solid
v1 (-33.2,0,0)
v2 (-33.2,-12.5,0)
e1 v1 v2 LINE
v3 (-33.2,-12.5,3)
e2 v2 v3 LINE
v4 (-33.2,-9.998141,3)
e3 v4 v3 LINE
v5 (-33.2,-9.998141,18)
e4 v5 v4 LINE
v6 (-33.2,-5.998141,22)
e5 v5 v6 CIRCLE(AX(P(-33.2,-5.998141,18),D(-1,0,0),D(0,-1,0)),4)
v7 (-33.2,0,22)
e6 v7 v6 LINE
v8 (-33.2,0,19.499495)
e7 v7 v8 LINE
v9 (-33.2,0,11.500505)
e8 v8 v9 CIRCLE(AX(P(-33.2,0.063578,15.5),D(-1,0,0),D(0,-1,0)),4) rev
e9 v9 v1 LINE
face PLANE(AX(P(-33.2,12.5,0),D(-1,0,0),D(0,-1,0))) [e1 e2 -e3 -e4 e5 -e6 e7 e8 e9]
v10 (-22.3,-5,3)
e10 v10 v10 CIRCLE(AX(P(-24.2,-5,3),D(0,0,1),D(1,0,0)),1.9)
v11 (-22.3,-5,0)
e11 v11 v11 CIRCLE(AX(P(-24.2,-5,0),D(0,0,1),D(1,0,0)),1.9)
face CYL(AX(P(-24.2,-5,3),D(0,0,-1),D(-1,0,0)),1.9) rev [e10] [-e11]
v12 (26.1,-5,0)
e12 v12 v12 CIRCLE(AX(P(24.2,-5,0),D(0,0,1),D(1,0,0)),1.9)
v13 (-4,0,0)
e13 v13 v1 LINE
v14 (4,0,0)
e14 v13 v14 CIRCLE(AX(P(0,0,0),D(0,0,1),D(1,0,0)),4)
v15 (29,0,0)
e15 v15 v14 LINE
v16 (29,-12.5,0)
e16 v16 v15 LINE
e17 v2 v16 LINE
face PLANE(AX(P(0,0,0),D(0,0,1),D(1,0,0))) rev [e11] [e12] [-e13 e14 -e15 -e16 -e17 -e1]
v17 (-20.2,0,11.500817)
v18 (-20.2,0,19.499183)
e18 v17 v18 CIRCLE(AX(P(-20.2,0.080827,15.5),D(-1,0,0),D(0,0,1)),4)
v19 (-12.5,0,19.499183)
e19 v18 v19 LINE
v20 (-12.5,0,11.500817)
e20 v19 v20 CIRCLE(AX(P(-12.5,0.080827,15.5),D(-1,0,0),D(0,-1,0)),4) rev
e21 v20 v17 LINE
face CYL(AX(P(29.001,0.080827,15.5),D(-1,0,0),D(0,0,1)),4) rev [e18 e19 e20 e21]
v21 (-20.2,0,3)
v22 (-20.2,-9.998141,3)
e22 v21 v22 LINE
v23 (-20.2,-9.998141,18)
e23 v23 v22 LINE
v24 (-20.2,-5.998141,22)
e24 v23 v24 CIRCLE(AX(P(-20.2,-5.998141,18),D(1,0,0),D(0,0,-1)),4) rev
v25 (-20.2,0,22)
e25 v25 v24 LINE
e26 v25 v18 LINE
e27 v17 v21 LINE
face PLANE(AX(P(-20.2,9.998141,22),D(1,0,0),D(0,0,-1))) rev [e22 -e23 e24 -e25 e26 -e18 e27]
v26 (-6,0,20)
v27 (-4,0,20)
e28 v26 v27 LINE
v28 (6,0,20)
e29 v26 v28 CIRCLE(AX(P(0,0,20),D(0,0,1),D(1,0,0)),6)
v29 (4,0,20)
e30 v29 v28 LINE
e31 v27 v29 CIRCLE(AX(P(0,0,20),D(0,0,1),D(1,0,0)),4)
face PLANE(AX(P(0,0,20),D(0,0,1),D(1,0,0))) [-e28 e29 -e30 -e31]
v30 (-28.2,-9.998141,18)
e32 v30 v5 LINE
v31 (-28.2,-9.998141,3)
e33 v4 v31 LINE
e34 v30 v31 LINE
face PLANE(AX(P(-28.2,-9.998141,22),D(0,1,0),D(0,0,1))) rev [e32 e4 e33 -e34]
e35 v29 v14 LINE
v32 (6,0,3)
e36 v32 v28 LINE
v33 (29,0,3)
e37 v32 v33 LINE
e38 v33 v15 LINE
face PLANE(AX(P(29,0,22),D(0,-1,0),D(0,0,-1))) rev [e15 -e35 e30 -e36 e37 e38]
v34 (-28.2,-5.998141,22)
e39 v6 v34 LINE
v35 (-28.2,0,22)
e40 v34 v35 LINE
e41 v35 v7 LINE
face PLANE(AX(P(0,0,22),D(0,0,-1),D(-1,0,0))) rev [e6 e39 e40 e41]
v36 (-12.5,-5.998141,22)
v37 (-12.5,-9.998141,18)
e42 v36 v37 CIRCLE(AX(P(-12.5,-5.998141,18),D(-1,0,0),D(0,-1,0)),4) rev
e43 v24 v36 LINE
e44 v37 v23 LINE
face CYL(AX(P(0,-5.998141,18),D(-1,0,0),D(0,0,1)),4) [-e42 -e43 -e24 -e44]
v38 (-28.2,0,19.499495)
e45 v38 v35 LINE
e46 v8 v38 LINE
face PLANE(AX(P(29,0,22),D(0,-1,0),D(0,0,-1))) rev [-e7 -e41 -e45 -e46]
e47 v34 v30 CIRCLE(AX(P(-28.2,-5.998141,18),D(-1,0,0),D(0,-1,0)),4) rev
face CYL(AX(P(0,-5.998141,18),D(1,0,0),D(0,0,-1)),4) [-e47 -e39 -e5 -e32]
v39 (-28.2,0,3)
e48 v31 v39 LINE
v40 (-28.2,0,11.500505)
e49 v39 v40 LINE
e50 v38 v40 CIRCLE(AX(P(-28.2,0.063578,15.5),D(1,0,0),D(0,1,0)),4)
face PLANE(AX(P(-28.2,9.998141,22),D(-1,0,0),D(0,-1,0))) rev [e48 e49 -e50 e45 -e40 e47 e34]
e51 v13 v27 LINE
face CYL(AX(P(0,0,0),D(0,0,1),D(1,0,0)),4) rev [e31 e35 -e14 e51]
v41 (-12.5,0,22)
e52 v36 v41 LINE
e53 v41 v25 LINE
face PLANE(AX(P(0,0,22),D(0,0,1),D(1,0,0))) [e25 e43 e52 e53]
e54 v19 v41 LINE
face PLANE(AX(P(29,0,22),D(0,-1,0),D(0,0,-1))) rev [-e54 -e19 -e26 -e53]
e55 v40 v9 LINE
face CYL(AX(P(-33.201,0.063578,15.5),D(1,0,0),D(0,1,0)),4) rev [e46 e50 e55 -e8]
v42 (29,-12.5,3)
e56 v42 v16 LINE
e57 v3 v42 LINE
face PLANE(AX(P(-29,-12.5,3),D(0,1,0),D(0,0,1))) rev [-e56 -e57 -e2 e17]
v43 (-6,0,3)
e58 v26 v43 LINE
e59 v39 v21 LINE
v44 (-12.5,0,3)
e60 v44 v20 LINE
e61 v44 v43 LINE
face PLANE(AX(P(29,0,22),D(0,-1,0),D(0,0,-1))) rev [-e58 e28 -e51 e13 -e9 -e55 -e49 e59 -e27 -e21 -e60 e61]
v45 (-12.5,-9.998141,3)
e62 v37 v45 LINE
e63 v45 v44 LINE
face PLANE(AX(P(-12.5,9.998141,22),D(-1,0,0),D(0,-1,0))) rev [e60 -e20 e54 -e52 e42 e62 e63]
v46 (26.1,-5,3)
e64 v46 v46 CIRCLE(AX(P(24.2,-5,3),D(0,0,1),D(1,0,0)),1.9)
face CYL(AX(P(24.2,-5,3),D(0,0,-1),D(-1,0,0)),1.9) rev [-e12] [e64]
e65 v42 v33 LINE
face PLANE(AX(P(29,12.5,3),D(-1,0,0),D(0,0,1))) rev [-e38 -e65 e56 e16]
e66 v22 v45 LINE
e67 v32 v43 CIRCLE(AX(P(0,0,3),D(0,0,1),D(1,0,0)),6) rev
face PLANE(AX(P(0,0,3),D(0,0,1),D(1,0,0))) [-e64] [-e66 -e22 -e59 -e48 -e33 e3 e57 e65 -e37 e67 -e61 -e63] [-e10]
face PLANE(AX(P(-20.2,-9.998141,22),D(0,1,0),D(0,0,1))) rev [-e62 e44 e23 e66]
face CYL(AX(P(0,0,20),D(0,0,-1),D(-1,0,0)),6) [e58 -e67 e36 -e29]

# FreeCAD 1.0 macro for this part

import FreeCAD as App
import Part
import Sketcher
Q = App.Units.Quantity


def edges_at(feature, points):
    """Names of the edges that pass closest to the given points."""
    edges = feature.Shape.Edges
    near = lambda p: min(range(len(edges)), key=lambda i: edges[i].distToShape(Part.Vertex(*p))[0])
    return sorted({f"Edge{near(p) + 1}" for p in points})


def add_polygon(sketch, points):
    """Adds a closed chain of lines whose ends are joined by coincident constraints."""
    first, n = sketch.GeometryCount, len(points)
    for a, b in zip(points, points[1:] + points[:1]):
        sketch.addGeometry(Part.LineSegment(App.Vector(*a, 0), App.Vector(*b, 0)), False)
    for i in range(n):
        sketch.addConstraint(Sketcher.Constraint("Coincident", first + i, 2, first + (i + 1) % n, 1))

doc = App.newDocument("Part")
body = doc.addObject("PartDesign::Body", "Body")

# Sketch on XY plane
sketch1 = doc.addObject("Sketcher::SketchObject", "Sketch")
body.addObject(sketch1)
sketch1.AttachmentSupport = (doc.XY_Plane, [""])
sketch1.MapMode = "FlatFace"
add_polygon(sketch1, [(-29, 12.5), (-29, -12.5), (29, -12.5), (29, 12.5)])  # lines 0-3
sketch1.addGeometry(Part.Circle(App.Vector(-24.2, -5, 0), App.Vector(0, 0, 1), 1.9), False)  # 4
sketch1.addGeometry(Part.Circle(App.Vector(24.2, -5, 0), App.Vector(0, 0, 1), 1.9), False)  # 5
sketch1.addGeometry(Part.Circle(App.Vector(-24.2, 5, 0), App.Vector(0, 0, 1), 1.9), False)  # 6
sketch1.addGeometry(Part.Circle(App.Vector(24.2, 5, 0), App.Vector(0, 0, 1), 1.9), False)  # 7
sketch1.addConstraint(Sketcher.Constraint("Vertical", 0))
sketch1.addConstraint(Sketcher.Constraint("Horizontal", 1))
sketch1.addConstraint(Sketcher.Constraint("Vertical", 2))
sketch1.addConstraint(Sketcher.Constraint("Horizontal", 3))
sketch1.addConstraint(Sketcher.Constraint("Equal", 4, 5))
sketch1.addConstraint(Sketcher.Constraint("Equal", 5, 6))
sketch1.addConstraint(Sketcher.Constraint("Equal", 6, 7))
sketch1.addConstraint(Sketcher.Constraint("Symmetric", 5, 3, 6, 3, -1, 1))
sketch1.addConstraint(Sketcher.Constraint("Symmetric", 4, 3, 7, 3, -1, 1))
sketch1.addConstraint(Sketcher.Constraint("Symmetric", 0, 2, 2, 2, -1, 1))
sketch1.addConstraint(Sketcher.Constraint("Symmetric", 4, 3, 5, 3, -2))
sketch1.addConstraint(Sketcher.Constraint("Diameter", 4, Q("3.8 mm")))
sketch1.addConstraint(Sketcher.Constraint("DistanceX", 1, 1, 1, 2, Q("58 mm")))
sketch1.addConstraint(Sketcher.Constraint("DistanceY", 0, 2, 0, 1, Q("25 mm")))
sketch1.addConstraint(Sketcher.Constraint("DistanceY", 4, 3, -1, 1, Q("5 mm")))
sketch1.addConstraint(Sketcher.Constraint("DistanceX", 4, 3, -1, 1, Q("24.2 mm")))
pad1 = doc.addObject("PartDesign::Pad", "Pad")
body.addObject(pad1)
pad1.Profile = sketch1
pad1.Length = 3

# Sketch on XY plane
sketch2 = doc.addObject("Sketcher::SketchObject", "Sketch001")
body.addObject(sketch2)
sketch2.AttachmentSupport = (doc.XY_Plane, [""])
sketch2.MapMode = "FlatFace"
sketch2.addGeometry(Part.Circle(App.Vector(0, 0, 0), App.Vector(0, 0, 1), 6), False)
sketch2.addConstraint(Sketcher.Constraint("Coincident", 0, 3, -1, 1))
sketch2.addConstraint(Sketcher.Constraint("Diameter", 0, Q("12 mm")))
pad2 = doc.addObject("PartDesign::Pad", "Pad001")
body.addObject(pad2)
pad2.Profile = sketch2
pad2.Length = 20

# Sketch on XY plane
sketch3 = doc.addObject("Sketcher::SketchObject", "Sketch002")
body.addObject(sketch3)
sketch3.AttachmentSupport = (doc.XY_Plane, [""])
sketch3.MapMode = "FlatFace"
sketch3.AttachmentOffset = App.Placement(App.Vector(0, 0, 20), App.Rotation())
sketch3.addGeometry(Part.Circle(App.Vector(0, 0, 0), App.Vector(0, 0, 1), 4), False)
sketch3.addConstraint(Sketcher.Constraint("Coincident", 0, 3, -1, 1))
sketch3.addConstraint(Sketcher.Constraint("Diameter", 0, Q("8 mm")))
pocket1 = doc.addObject("PartDesign::Pocket", "Pocket")
body.addObject(pocket1)
pocket1.Profile = sketch3
pocket1.Type = "ThroughAll"

# Sketch on XY plane
sketch4 = doc.addObject("Sketcher::SketchObject", "Sketch003")
body.addObject(sketch4)
sketch4.AttachmentSupport = (doc.XY_Plane, [""])
sketch4.MapMode = "FlatFace"
sketch4.AttachmentOffset = App.Placement(App.Vector(0, 0, 3), App.Rotation())
add_polygon(sketch4, [(-20, 10), (-20, -10), (-12, -10), (-12, 10)])  # lines 0-3
sketch4.addConstraint(Sketcher.Constraint("Vertical", 0))
sketch4.addConstraint(Sketcher.Constraint("Horizontal", 1))
sketch4.addConstraint(Sketcher.Constraint("Vertical", 2))
sketch4.addConstraint(Sketcher.Constraint("Horizontal", 3))
sketch4.addConstraint(Sketcher.Constraint("DistanceX", 1, 1, 1, 2, Q("7.7 mm")))
sketch4.addConstraint(Sketcher.Constraint("DistanceX", 0, 2, -1, 1, Q("20.2 mm")))
sketch4.addConstraint(Sketcher.Constraint("DistanceY", 0, 2, 0, 1, Q("19.996282 mm")))
sketch4.addConstraint(Sketcher.Constraint("DistanceY", 0, 2, -1, 1, Q("9.998141 mm")))
pad3 = doc.addObject("PartDesign::Pad", "Pad002")
body.addObject(pad3)
pad3.Profile = sketch4
pad3.Length = 19

# Sketch on YZ plane
sketch5 = doc.addObject("Sketcher::SketchObject", "Sketch004")
body.addObject(sketch5)
sketch5.AttachmentSupport = (doc.YZ_Plane, [""])
sketch5.MapMode = "FlatFace"
sketch5.AttachmentOffset = App.Placement(App.Vector(0, 0, -20.2), App.Rotation())
sketch5.addGeometry(Part.Circle(App.Vector(0.1, 15.5, 0), App.Vector(0, 0, 1), 4), False)
sketch5.addConstraint(Sketcher.Constraint("Diameter", 0, Q("8 mm")))
sketch5.addConstraint(Sketcher.Constraint("DistanceY", -1, 1, 0, 3, Q("15.5 mm")))
sketch5.addConstraint(Sketcher.Constraint("DistanceX", -1, 1, 0, 3, Q("0.080827 mm")))
pocket2 = doc.addObject("PartDesign::Pocket", "Pocket001")
body.addObject(pocket2)
pocket2.Profile = sketch5
pocket2.Type = "UpToFirst"
pocket2.Reversed = True
doc.recompute()

fillet = doc.addObject("PartDesign::Fillet", "Fillet")
body.addObject(fillet)
fillet.Base = (pocket2, edges_at(pocket2, [(-16.35, 9.998, 22), (-16.35, -9.998, 22)]))
fillet.Radius = 4

# Sketch on XY plane
sketch6 = doc.addObject("Sketcher::SketchObject", "Sketch005")
body.addObject(sketch6)
sketch6.AttachmentSupport = (doc.XY_Plane, [""])
sketch6.MapMode = "FlatFace"
sketch6.AttachmentOffset = App.Placement(App.Vector(0, 0, 3), App.Rotation())
add_polygon(sketch6, [(-33.2, 12.5), (-33.2, -12.5), (-29, -12.5), (-29, 12.5)])  # lines 0-3
sketch6.addConstraint(Sketcher.Constraint("Vertical", 0))
sketch6.addConstraint(Sketcher.Constraint("Horizontal", 1))
sketch6.addConstraint(Sketcher.Constraint("Vertical", 2))
sketch6.addConstraint(Sketcher.Constraint("Horizontal", 3))
sketch6.addConstraint(Sketcher.Constraint("DistanceY", 0, 2, 0, 1, Q("25 mm")))
sketch6.addConstraint(Sketcher.Constraint("DistanceX", 1, 1, 1, 2, Q("4.2 mm")))
sketch6.addConstraint(Sketcher.Constraint("DistanceX", 1, 2, -1, 1, Q("29 mm")))
sketch6.addConstraint(Sketcher.Constraint("DistanceY", 0, 2, -1, 1, Q("12.5 mm")))
pad4 = doc.addObject("PartDesign::Pad", "Pad003")
body.addObject(pad4)
pad4.Profile = sketch6
pad4.Length = 3
pad4.Reversed = True

# Sketch on XY plane
sketch7 = doc.addObject("Sketcher::SketchObject", "Sketch006")
body.addObject(sketch7)
sketch7.AttachmentSupport = (doc.XY_Plane, [""])
sketch7.MapMode = "FlatFace"
sketch7.AttachmentOffset = App.Placement(App.Vector(0, 0, 3), App.Rotation())
add_polygon(sketch7, [(-33, 10), (-33, -10), (-28, -10), (-28, 10)])  # lines 0-3
sketch7.addConstraint(Sketcher.Constraint("Vertical", 0))
sketch7.addConstraint(Sketcher.Constraint("Horizontal", 1))
sketch7.addConstraint(Sketcher.Constraint("Vertical", 2))
sketch7.addConstraint(Sketcher.Constraint("Horizontal", 3))
sketch7.addConstraint(Sketcher.Constraint("DistanceX", 1, 1, 1, 2, Q("5 mm")))
sketch7.addConstraint(Sketcher.Constraint("DistanceX", 0, 2, -1, 1, Q("33.2 mm")))
sketch7.addConstraint(Sketcher.Constraint("DistanceY", 0, 2, 0, 1, Q("19.996282 mm")))
sketch7.addConstraint(Sketcher.Constraint("DistanceY", 0, 2, -1, 1, Q("9.998141 mm")))
pad5 = doc.addObject("PartDesign::Pad", "Pad004")
body.addObject(pad5)
pad5.Profile = sketch7
pad5.Length = 19

# Sketch on YZ plane
sketch8 = doc.addObject("Sketcher::SketchObject", "Sketch007")
body.addObject(sketch8)
sketch8.AttachmentSupport = (doc.YZ_Plane, [""])
sketch8.MapMode = "FlatFace"
sketch8.AttachmentOffset = App.Placement(App.Vector(0, 0, -28.2), App.Rotation())
sketch8.addGeometry(Part.Circle(App.Vector(0.1, 15.5, 0), App.Vector(0, 0, 1), 4), False)
sketch8.addConstraint(Sketcher.Constraint("Diameter", 0, Q("8 mm")))
sketch8.addConstraint(Sketcher.Constraint("DistanceY", -1, 1, 0, 3, Q("15.5 mm")))
sketch8.addConstraint(Sketcher.Constraint("DistanceX", -1, 1, 0, 3, Q("0.063578 mm")))
pocket3 = doc.addObject("PartDesign::Pocket", "Pocket002")
body.addObject(pocket3)
pocket3.Profile = sketch8
pocket3.Type = "UpToFirst"
doc.recompute()

fillet2 = doc.addObject("PartDesign::Fillet", "Fillet001")
body.addObject(fillet2)
fillet2.Base = (pocket3, edges_at(pocket3, [(-30.7, 9.998, 22), (-30.7, -9.998, 22)]))
fillet2.Radius = 4

# Sketch on XY plane
sketch9 = doc.addObject("Sketcher::SketchObject", "Sketch008")
body.addObject(sketch9)
sketch9.AttachmentSupport = (doc.XY_Plane, [""])
sketch9.MapMode = "FlatFace"
add_polygon(sketch9, [(29, 12), (29, 0), (-33, 0), (-33, 12)])  # lines 0-3
sketch9.addConstraint(Sketcher.Constraint("Vertical", 0))
sketch9.addConstraint(Sketcher.Constraint("Horizontal", 1))
sketch9.addConstraint(Sketcher.Constraint("Vertical", 2))
sketch9.addConstraint(Sketcher.Constraint("Horizontal", 3))
sketch9.addConstraint(Sketcher.Constraint("PointOnObject", 0, 2, -1))
sketch9.addConstraint(Sketcher.Constraint("DistanceX", 1, 2, 1, 1, Q("62.2 mm")))
sketch9.addConstraint(Sketcher.Constraint("DistanceY", 0, 2, 0, 1, Q("12.5 mm")))
sketch9.addConstraint(Sketcher.Constraint("DistanceX", -1, 1, 0, 2, Q("29 mm")))
pocket4 = doc.addObject("PartDesign::Pocket", "Pocket003")
body.addObject(pocket4)
pocket4.Profile = sketch9
pocket4.Type = "ThroughAll"
pocket4.Reversed = True

doc.recompute()
